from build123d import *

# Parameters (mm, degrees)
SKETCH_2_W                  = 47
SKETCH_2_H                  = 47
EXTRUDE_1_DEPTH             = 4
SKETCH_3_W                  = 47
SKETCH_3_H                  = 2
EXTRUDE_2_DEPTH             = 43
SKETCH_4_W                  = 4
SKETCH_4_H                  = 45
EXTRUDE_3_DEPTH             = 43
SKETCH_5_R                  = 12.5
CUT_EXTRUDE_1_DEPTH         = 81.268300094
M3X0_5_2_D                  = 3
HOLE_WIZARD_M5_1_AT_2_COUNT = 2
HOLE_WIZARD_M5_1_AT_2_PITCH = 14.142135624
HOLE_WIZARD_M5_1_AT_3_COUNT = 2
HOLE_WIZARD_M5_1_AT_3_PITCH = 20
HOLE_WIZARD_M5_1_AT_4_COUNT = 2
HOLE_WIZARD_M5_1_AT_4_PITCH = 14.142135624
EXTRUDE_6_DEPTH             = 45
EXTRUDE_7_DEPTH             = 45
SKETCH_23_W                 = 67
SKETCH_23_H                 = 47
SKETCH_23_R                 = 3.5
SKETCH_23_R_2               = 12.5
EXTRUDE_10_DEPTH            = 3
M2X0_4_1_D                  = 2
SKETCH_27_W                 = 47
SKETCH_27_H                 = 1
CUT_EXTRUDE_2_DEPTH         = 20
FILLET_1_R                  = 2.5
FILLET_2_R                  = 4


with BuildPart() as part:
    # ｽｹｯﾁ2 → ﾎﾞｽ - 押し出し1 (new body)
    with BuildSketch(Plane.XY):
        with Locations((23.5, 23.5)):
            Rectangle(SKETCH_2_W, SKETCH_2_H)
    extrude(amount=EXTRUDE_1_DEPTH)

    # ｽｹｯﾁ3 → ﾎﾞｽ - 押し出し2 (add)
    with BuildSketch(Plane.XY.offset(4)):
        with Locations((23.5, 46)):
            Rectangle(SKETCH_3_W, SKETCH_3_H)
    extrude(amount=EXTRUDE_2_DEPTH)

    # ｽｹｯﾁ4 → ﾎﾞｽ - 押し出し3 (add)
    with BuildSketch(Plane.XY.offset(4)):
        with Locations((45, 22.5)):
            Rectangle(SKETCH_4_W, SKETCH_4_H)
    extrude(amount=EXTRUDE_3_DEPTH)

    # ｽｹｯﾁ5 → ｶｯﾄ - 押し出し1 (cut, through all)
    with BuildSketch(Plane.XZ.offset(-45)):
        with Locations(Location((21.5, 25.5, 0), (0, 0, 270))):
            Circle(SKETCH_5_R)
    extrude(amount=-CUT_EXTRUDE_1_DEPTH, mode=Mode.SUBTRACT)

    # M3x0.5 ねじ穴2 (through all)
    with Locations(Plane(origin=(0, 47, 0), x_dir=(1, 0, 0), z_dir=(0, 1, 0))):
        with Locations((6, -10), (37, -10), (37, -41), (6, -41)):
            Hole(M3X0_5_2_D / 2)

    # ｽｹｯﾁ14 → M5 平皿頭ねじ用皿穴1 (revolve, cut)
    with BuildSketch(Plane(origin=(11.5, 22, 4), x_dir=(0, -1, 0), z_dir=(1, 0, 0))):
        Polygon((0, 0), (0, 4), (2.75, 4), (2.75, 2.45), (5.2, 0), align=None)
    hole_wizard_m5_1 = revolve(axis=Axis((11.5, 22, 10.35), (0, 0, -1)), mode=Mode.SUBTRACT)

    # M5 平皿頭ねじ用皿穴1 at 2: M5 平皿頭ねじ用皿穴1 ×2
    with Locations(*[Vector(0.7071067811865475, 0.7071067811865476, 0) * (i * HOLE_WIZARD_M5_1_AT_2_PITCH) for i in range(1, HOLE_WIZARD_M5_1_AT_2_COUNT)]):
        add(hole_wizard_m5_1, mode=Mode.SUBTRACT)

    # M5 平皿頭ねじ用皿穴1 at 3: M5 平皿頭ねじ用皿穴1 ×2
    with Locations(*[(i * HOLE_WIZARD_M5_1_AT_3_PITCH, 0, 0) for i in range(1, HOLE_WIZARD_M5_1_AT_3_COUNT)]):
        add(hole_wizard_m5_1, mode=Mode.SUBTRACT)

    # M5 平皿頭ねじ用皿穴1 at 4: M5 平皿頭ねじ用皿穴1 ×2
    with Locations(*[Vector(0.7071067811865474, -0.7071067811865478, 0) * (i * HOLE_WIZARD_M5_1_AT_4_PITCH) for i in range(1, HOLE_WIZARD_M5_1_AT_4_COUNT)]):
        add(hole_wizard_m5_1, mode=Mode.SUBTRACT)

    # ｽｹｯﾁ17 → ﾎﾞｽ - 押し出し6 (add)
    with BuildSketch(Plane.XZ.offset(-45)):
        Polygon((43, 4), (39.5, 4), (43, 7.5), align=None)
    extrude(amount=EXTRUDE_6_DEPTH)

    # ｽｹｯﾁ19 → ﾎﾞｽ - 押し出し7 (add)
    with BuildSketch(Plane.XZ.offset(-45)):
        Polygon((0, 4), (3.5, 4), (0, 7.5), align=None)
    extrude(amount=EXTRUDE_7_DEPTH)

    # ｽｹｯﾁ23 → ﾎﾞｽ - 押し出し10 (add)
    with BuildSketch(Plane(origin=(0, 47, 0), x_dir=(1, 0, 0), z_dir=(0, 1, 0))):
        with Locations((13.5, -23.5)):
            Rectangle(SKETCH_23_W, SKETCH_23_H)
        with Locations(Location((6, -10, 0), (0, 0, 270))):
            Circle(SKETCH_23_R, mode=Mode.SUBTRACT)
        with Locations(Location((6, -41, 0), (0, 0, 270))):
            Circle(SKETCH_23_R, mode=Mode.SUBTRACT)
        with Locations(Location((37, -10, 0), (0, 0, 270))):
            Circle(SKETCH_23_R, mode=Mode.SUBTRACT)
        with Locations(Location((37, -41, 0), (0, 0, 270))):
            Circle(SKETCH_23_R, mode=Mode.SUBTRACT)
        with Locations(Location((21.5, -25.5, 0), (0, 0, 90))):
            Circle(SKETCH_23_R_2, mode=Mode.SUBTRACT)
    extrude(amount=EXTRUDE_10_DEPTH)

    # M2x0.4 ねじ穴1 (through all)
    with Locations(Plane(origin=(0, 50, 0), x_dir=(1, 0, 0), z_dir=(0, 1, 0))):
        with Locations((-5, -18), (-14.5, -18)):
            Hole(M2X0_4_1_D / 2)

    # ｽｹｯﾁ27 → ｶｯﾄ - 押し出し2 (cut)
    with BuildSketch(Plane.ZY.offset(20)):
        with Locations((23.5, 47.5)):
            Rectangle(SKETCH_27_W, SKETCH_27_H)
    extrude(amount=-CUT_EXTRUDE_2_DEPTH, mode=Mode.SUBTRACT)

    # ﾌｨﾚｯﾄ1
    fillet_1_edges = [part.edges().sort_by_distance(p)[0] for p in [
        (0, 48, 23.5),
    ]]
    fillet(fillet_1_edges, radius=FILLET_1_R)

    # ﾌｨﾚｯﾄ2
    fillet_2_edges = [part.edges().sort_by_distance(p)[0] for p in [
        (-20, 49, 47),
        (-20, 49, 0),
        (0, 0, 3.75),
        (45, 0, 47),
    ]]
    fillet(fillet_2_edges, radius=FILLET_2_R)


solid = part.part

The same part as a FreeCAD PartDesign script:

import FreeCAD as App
import Part
import Sketcher
from FreeCAD import Vector
Q = App.Units.Quantity


def edges_at(feature, points):
    """Names of the edges that pass closest to the given points."""
    edges = feature.Shape.Edges
    near = lambda p: min(range(len(edges)), key=lambda i: edges[i].distToShape(Part.Vertex(*p))[0])
    return sorted({f"Edge{near(p) + 1}" for p in points})

doc = App.newDocument("Part")
body = doc.addObject("PartDesign::Body", "Body")

sketch1 = doc.addObject("Sketcher::SketchObject", "Sketch")
body.addObject(sketch1)
sketch1.AttachmentSupport = (doc.XY_Plane, [""])
sketch1.MapMode = "FlatFace"
sketch1.addGeometry(Part.LineSegment(Vector(0, 47, 0), Vector(0, 0, 0)), False)
sketch1.addGeometry(Part.LineSegment(Vector(0, 0, 0), Vector(47, 0, 0)), False)
sketch1.addGeometry(Part.LineSegment(Vector(47, 0, 0), Vector(47, 47, 0)), False)
sketch1.addGeometry(Part.LineSegment(Vector(47, 47, 0), Vector(0, 47, 0)), False)
sketch1.addConstraint(Sketcher.Constraint("Coincident", 0, 2, 1, 1))
sketch1.addConstraint(Sketcher.Constraint("Coincident", 1, 2, 2, 1))
sketch1.addConstraint(Sketcher.Constraint("Coincident", 2, 2, 3, 1))
sketch1.addConstraint(Sketcher.Constraint("Coincident", 3, 2, 0, 1))
sketch1.addConstraint(Sketcher.Constraint("Vertical", 0))
sketch1.addConstraint(Sketcher.Constraint("Horizontal", 1))
sketch1.addConstraint(Sketcher.Constraint("Vertical", 2))
sketch1.addConstraint(Sketcher.Constraint("Horizontal", 3))
sketch1.addConstraint(Sketcher.Constraint("Coincident", 0, 2, -1, 1))
sketch1.addConstraint(Sketcher.Constraint("Equal", 3, 0))
sketch1.addConstraint(Sketcher.Constraint("DistanceX", 1, 1, 1, 2, Q("47 mm")))
pad1 = doc.addObject("PartDesign::Pad", "Pad")
body.addObject(pad1)
pad1.Profile = sketch1
pad1.Length = 4

sketch2 = doc.addObject("Sketcher::SketchObject", "Sketch001")
body.addObject(sketch2)
sketch2.AttachmentSupport = (doc.XY_Plane, [""])
sketch2.MapMode = "FlatFace"
sketch2.AttachmentOffset = App.Placement(Vector(0, 0, 4), App.Rotation())
sketch2.addGeometry(Part.LineSegment(Vector(0, 47, 0), Vector(0, 45, 0)), False)
sketch2.addGeometry(Part.LineSegment(Vector(0, 45, 0), Vector(47, 45, 0)), False)
sketch2.addGeometry(Part.LineSegment(Vector(47, 45, 0), Vector(47, 47, 0)), False)
sketch2.addGeometry(Part.LineSegment(Vector(47, 47, 0), Vector(0, 47, 0)), False)
sketch2.addConstraint(Sketcher.Constraint("Coincident", 0, 2, 1, 1))
sketch2.addConstraint(Sketcher.Constraint("Coincident", 1, 2, 2, 1))
sketch2.addConstraint(Sketcher.Constraint("Coincident", 2, 2, 3, 1))
sketch2.addConstraint(Sketcher.Constraint("Coincident", 3, 2, 0, 1))
sketch2.addConstraint(Sketcher.Constraint("Vertical", 0))
sketch2.addConstraint(Sketcher.Constraint("Horizontal", 1))
sketch2.addConstraint(Sketcher.Constraint("Vertical", 2))
sketch2.addConstraint(Sketcher.Constraint("Horizontal", 3))
sketch2.addConstraint(Sketcher.Constraint("PointOnObject", 0, 2, -2))
sketch2.addConstraint(Sketcher.Constraint("DistanceX", 1, 1, 1, 2, Q("47 mm")))
sketch2.addConstraint(Sketcher.Constraint("DistanceY", 0, 2, 0, 1, Q("2 mm")))
sketch2.addConstraint(Sketcher.Constraint("DistanceY", -1, 1, 0, 2, Q("45 mm")))
pad2 = doc.addObject("PartDesign::Pad", "Pad001")
body.addObject(pad2)
pad2.Profile = sketch2
pad2.Length = 43

sketch3 = doc.addObject("Sketcher::SketchObject", "Sketch002")
body.addObject(sketch3)
sketch3.AttachmentSupport = (doc.XY_Plane, [""])
sketch3.MapMode = "FlatFace"
sketch3.AttachmentOffset = App.Placement(Vector(0, 0, 4), App.Rotation())
sketch3.addGeometry(Part.LineSegment(Vector(43, 45, 0), Vector(43, 0, 0)), False)
sketch3.addGeometry(Part.LineSegment(Vector(43, 0, 0), Vector(47, 0, 0)), False)
sketch3.addGeometry(Part.LineSegment(Vector(47, 0, 0), Vector(47, 45, 0)), False)
sketch3.addGeometry(Part.LineSegment(Vector(47, 45, 0), Vector(43, 45, 0)), False)
sketch3.addConstraint(Sketcher.Constraint("Coincident", 0, 2, 1, 1))
sketch3.addConstraint(Sketcher.Constraint("Coincident", 1, 2, 2, 1))
sketch3.addConstraint(Sketcher.Constraint("Coincident", 2, 2, 3, 1))
sketch3.addConstraint(Sketcher.Constraint("Coincident", 3, 2, 0, 1))
sketch3.addConstraint(Sketcher.Constraint("Vertical", 0))
sketch3.addConstraint(Sketcher.Constraint("Horizontal", 1))
sketch3.addConstraint(Sketcher.Constraint("Vertical", 2))
sketch3.addConstraint(Sketcher.Constraint("Horizontal", 3))
sketch3.addConstraint(Sketcher.Constraint("PointOnObject", 0, 2, -1))
sketch3.addConstraint(Sketcher.Constraint("DistanceX", 1, 1, 1, 2, Q("4 mm")))
sketch3.addConstraint(Sketcher.Constraint("DistanceY", 0, 2, 0, 1, Q("45 mm")))
sketch3.addConstraint(Sketcher.Constraint("DistanceX", -1, 1, 0, 2, Q("43 mm")))
pad3 = doc.addObject("PartDesign::Pad", "Pad002")
body.addObject(pad3)
pad3.Profile = sketch3
pad3.Length = 43

sketch4 = doc.addObject("Sketcher::SketchObject", "Sketch003")
body.addObject(sketch4)
sketch4.AttachmentSupport = (doc.XZ_Plane, [""])
sketch4.MapMode = "FlatFace"
sketch4.AttachmentOffset = App.Placement(Vector(0, 0, -45), App.Rotation())
sketch4.addGeometry(Part.Circle(Vector(22, 26, 0), Vector(0, 0, 1), 12), False)
sketch4.addConstraint(Sketcher.Constraint("Diameter", 0, Q("25 mm")))
sketch4.addConstraint(Sketcher.Constraint("DistanceX", -1, 1, 0, 3, Q("21.5 mm")))
sketch4.addConstraint(Sketcher.Constraint("DistanceY", -1, 1, 0, 3, Q("25.5 mm")))
pocket1 = doc.addObject("PartDesign::Pocket", "Pocket")
body.addObject(pocket1)
pocket1.Profile = sketch4
pocket1.Type = "ThroughAll"

sketch5 = doc.addObject("Sketcher::SketchObject", "Sketch004")
body.addObject(sketch5)
sketch5.AttachmentSupport = (doc.XZ_Plane, [""])
sketch5.MapMode = "FlatFace"
sketch5.AttachmentOffset = App.Placement(Vector(0, 0, -47), App.Rotation())
sketch5.addGeometry(Part.Circle(Vector(6, 10, 0), Vector(0, 0, 1), 1.5), False)
sketch5.addGeometry(Part.Circle(Vector(37, 10, 0), Vector(0, 0, 1), 1.5), False)
sketch5.addGeometry(Part.Circle(Vector(37, 41, 0), Vector(0, 0, 1), 1.5), False)
sketch5.addGeometry(Part.Circle(Vector(6, 41, 0), Vector(0, 0, 1), 1.5), False)
sketch5.addConstraint(Sketcher.Constraint("Equal", 0, 1))
sketch5.addConstraint(Sketcher.Constraint("Equal", 1, 2))
sketch5.addConstraint(Sketcher.Constraint("Equal", 2, 3))
sketch5.addConstraint(Sketcher.Constraint("Horizontal", 0, 3, 1, 3))
sketch5.addConstraint(Sketcher.Constraint("Horizontal", 2, 3, 3, 3))
sketch5.addConstraint(Sketcher.Constraint("Vertical", 1, 3, 2, 3))
sketch5.addConstraint(Sketcher.Constraint("Vertical", 0, 3, 3, 3))
sketch5.addConstraint(Sketcher.Constraint("Diameter", 0, Q("3 mm")))
sketch5.addConstraint(Sketcher.Constraint("DistanceX", -1, 1, 0, 3, Q("6 mm")))
sketch5.addConstraint(Sketcher.Constraint("DistanceY", -1, 1, 0, 3, Q("10 mm")))
sketch5.addConstraint(Sketcher.Constraint("DistanceX", -1, 1, 1, 3, Q("37 mm")))
sketch5.addConstraint(Sketcher.Constraint("DistanceY", -1, 1, 2, 3, Q("41 mm")))
doc.recompute()
hole = doc.addObject("PartDesign::Hole", "Hole")
body.addObject(hole)
hole.Profile = sketch5
hole.ThreadType = "None"
hole.Diameter = 3
hole.DepthType = "ThroughAll"
hole.Reversed = True

sketch6 = doc.addObject("Sketcher::SketchObject", "Sketch005")
body.addObject(sketch6)
sketch6.AttachmentSupport = (doc.YZ_Plane, [""])
sketch6.MapMode = "FlatFace"
sketch6.AttachmentOffset = App.Placement(Vector(0, 0, 11.5), App.Rotation())
sketch6.addGeometry(Part.LineSegment(Vector(22, 0, 0), Vector(22, 4, 0)), False)
sketch6.addGeometry(Part.LineSegment(Vector(22, 4, 0), Vector(16.8, 4, 0)), False)
sketch6.addGeometry(Part.LineSegment(Vector(16.8, 4, 0), Vector(19.2, 1.6, 0)), False)
sketch6.addGeometry(Part.LineSegment(Vector(19.2, 1.6, 0), Vector(19.2, 0, 0)), False)
sketch6.addGeometry(Part.LineSegment(Vector(19.2, 0, 0), Vector(22, 0, 0)), False)
sketch6.addGeometry(Part.LineSegment(Vector(22, 4, 0), Vector(22, 0, 0)), True)
sketch6.addConstraint(Sketcher.Constraint("Coincident", 0, 2, 1, 1))
sketch6.addConstraint(Sketcher.Constraint("Coincident", 1, 2, 2, 1))
sketch6.addConstraint(Sketcher.Constraint("Coincident", 2, 2, 3, 1))
sketch6.addConstraint(Sketcher.Constraint("Coincident", 3, 2, 4, 1))
sketch6.addConstraint(Sketcher.Constraint("Coincident", 4, 2, 0, 1))
sketch6.addConstraint(Sketcher.Constraint("Vertical", 0))
sketch6.addConstraint(Sketcher.Constraint("Horizontal", 1))
sketch6.addConstraint(Sketcher.Constraint("Vertical", 3))
sketch6.addConstraint(Sketcher.Constraint("Horizontal", 4))
sketch6.addConstraint(Sketcher.Constraint("Vertical", 5))
sketch6.addConstraint(Sketcher.Constraint("Coincident", 5, 1, 0, 2))
sketch6.addConstraint(Sketcher.Constraint("PointOnObject", 3, 2, -1))
sketch6.addConstraint(Sketcher.Constraint("PointOnObject", 5, 2, -1))
sketch6.addConstraint(Sketcher.Constraint("DistanceY", 0, 1, 0, 2, Q("4 mm")))
sketch6.addConstraint(Sketcher.Constraint("Angle", 2, Q("-45 deg")))
sketch6.addConstraint(Sketcher.Constraint("DistanceX", 1, 2, 1, 1, Q("5.2 mm")))
sketch6.addConstraint(Sketcher.Constraint("DistanceX", -1, 1, 0, 2, Q("22 mm")))
sketch6.addConstraint(Sketcher.Constraint("DistanceX", 4, 1, 4, 2, Q("2.75 mm")))
groove = doc.addObject("PartDesign::Groove", "Groove")
body.addObject(groove)
groove.Profile = sketch6
groove.ReferenceAxis = (sketch6, ["Axis0"])
groove.Angle = 360
doc.recompute()

datumline = doc.addObject("PartDesign::Line", "DatumLine")
body.addObject(datumline)
datumline.Placement = App.Placement(Vector(0, 0, 0), App.Rotation(Vector(0, 0, 1), Vector(0.707106781, 0.707106781, 0)))
linearpattern = doc.addObject("PartDesign::LinearPattern", "LinearPattern")
body.addObject(linearpattern)
linearpattern.Originals = [groove]
linearpattern.Direction = (datumline, [""])
linearpattern.Mode = "offset"
linearpattern.Offset = 14.142136
linearpattern.Occurrences = 2
body.Tip = linearpattern
doc.recompute()

linearpattern2 = doc.addObject("PartDesign::LinearPattern", "LinearPattern001")
body.addObject(linearpattern2)
linearpattern2.Originals = [groove]
linearpattern2.Direction = (doc.X_Axis, [""])
linearpattern2.Mode = "offset"
linearpattern2.Offset = 20
linearpattern2.Occurrences = 2
body.Tip = linearpattern2
doc.recompute()

datumline2 = doc.addObject("PartDesign::Line", "DatumLine001")
body.addObject(datumline2)
datumline2.Placement = App.Placement(Vector(0, 0, 0), App.Rotation(Vector(0, 0, 1), Vector(0.707106781, -0.707106781, 0)))
linearpattern3 = doc.addObject("PartDesign::LinearPattern", "LinearPattern002")
body.addObject(linearpattern3)
linearpattern3.Originals = [groove]
linearpattern3.Direction = (datumline2, [""])
linearpattern3.Mode = "offset"
linearpattern3.Offset = 14.142136
linearpattern3.Occurrences = 2
body.Tip = linearpattern3

sketch7 = doc.addObject("Sketcher::SketchObject", "Sketch006")
body.addObject(sketch7)
sketch7.AttachmentSupport = (doc.XZ_Plane, [""])
sketch7.MapMode = "FlatFace"
sketch7.AttachmentOffset = App.Placement(Vector(0, 0, -45), App.Rotation())
sketch7.addGeometry(Part.LineSegment(Vector(39.5, 4, 0), Vector(43, 4, 0)), False)
sketch7.addGeometry(Part.LineSegment(Vector(43, 4, 0), Vector(43, 7.5, 0)), False)
sketch7.addGeometry(Part.LineSegment(Vector(43, 7.5, 0), Vector(39.5, 4, 0)), False)
sketch7.addConstraint(Sketcher.Constraint("Coincident", 0, 2, 1, 1))
sketch7.addConstraint(Sketcher.Constraint("Coincident", 1, 2, 2, 1))
sketch7.addConstraint(Sketcher.Constraint("Coincident", 2, 2, 0, 1))
sketch7.addConstraint(Sketcher.Constraint("Horizontal", 0))
sketch7.addConstraint(Sketcher.Constraint("Vertical", 1))
sketch7.addConstraint(Sketcher.Constraint("Equal", 0, 1))
sketch7.addConstraint(Sketcher.Constraint("DistanceX", 0, 1, 0, 2, Q("3.5 mm")))
sketch7.addConstraint(Sketcher.Constraint("DistanceX", -1, 1, 0, 2, Q("43 mm")))
sketch7.addConstraint(Sketcher.Constraint("DistanceY", -1, 1, 0, 2, Q("4 mm")))
pad4 = doc.addObject("PartDesign::Pad", "Pad003")
body.addObject(pad4)
pad4.Profile = sketch7
pad4.Length = 45

sketch8 = doc.addObject("Sketcher::SketchObject", "Sketch007")
body.addObject(sketch8)
sketch8.AttachmentSupport = (doc.XZ_Plane, [""])
sketch8.MapMode = "FlatFace"
sketch8.AttachmentOffset = App.Placement(Vector(0, 0, -45), App.Rotation())
sketch8.addGeometry(Part.LineSegment(Vector(0, 4, 0), Vector(3.5, 4, 0)), False)
sketch8.addGeometry(Part.LineSegment(Vector(3.5, 4, 0), Vector(0, 7.5, 0)), False)
sketch8.addGeometry(Part.LineSegment(Vector(0, 7.5, 0), Vector(0, 4, 0)), False)
sketch8.addConstraint(Sketcher.Constraint("Coincident", 0, 2, 1, 1))
sketch8.addConstraint(Sketcher.Constraint("Coincident", 1, 2, 2, 1))
sketch8.addConstraint(Sketcher.Constraint("Coincident", 2, 2, 0, 1))
sketch8.addConstraint(Sketcher.Constraint("Horizontal", 0))
sketch8.addConstraint(Sketcher.Constraint("Vertical", 2))
sketch8.addConstraint(Sketcher.Constraint("PointOnObject", 1, 2, -2))
sketch8.addConstraint(Sketcher.Constraint("Equal", 0, 2))
sketch8.addConstraint(Sketcher.Constraint("DistanceX", 0, 1, 0, 2, Q("3.5 mm")))
sketch8.addConstraint(Sketcher.Constraint("DistanceY", -1, 1, 0, 2, Q("4 mm")))
pad5 = doc.addObject("PartDesign::Pad", "Pad004")
body.addObject(pad5)
pad5.Profile = sketch8
pad5.Length = 45

sketch9 = doc.addObject("Sketcher::SketchObject", "Sketch008")
body.addObject(sketch9)
sketch9.AttachmentSupport = (doc.XZ_Plane, [""])
sketch9.MapMode = "FlatFace"
sketch9.AttachmentOffset = App.Placement(Vector(0, 0, -47), App.Rotation())
sketch9.addGeometry(Part.LineSegment(Vector(-20, 0, 0), Vector(-20, 47, 0)), False)
sketch9.addGeometry(Part.LineSegment(Vector(-20, 47, 0), Vector(47, 47, 0)), False)
sketch9.addGeometry(Part.LineSegment(Vector(47, 47, 0), Vector(47, 0, 0)), False)
sketch9.addGeometry(Part.LineSegment(Vector(47, 0, 0), Vector(-20, 0, 0)), False)
sketch9.addGeometry(Part.Circle(Vector(6, 41, 0), Vector(0, 0, 1), 3.5), False)
sketch9.addGeometry(Part.Circle(Vector(37, 41, 0), Vector(0, 0, 1), 3.5), False)
sketch9.addGeometry(Part.Circle(Vector(6, 10, 0), Vector(0, 0, 1), 3.5), False)
sketch9.addGeometry(Part.Circle(Vector(21.5, 25.5, 0), Vector(0, 0, 1), 12.5), False)
sketch9.addGeometry(Part.Circle(Vector(37, 10, 0), Vector(0, 0, 1), 3.5), False)
sketch9.addConstraint(Sketcher.Constraint("Coincident", 0, 2, 1, 1))
sketch9.addConstraint(Sketcher.Constraint("Coincident", 1, 2, 2, 1))
sketch9.addConstraint(Sketcher.Constraint("Coincident", 2, 2, 3, 1))
sketch9.addConstraint(Sketcher.Constraint("Coincident", 3, 2, 0, 1))
sketch9.addConstraint(Sketcher.Constraint("Vertical", 0))
sketch9.addConstraint(Sketcher.Constraint("Horizontal", 1))
sketch9.addConstraint(Sketcher.Constraint("Vertical", 2))
sketch9.addConstraint(Sketcher.Constraint("Horizontal", 3))
sketch9.addConstraint(Sketcher.Constraint("Equal", 4, 5))
sketch9.addConstraint(Sketcher.Constraint("Equal", 5, 6))
sketch9.addConstraint(Sketcher.Constraint("Equal", 6, 8))
sketch9.addConstraint(Sketcher.Constraint("PointOnObject", 2, 2, -1))
sketch9.addConstraint(Sketcher.Constraint("Horizontal", 4, 3, 5, 3))
sketch9.addConstraint(Sketcher.Constraint("Horizontal", 6, 3, 8, 3))
sketch9.addConstraint(Sketcher.Constraint("Vertical", 4, 3, 6, 3))
sketch9.addConstraint(Sketcher.Constraint("Vertical", 5, 3, 8, 3))
sketch9.addConstraint(Sketcher.Constraint("Diameter", 4, Q("7 mm")))
sketch9.addConstraint(Sketcher.Constraint("Diameter", 7, Q("25 mm")))
sketch9.addConstraint(Sketcher.Constraint("DistanceX", 1, 1, 1, 2, Q("67 mm")))
sketch9.addConstraint(Sketcher.Constraint("DistanceY", 0, 1, 0, 2, Q("47 mm")))
sketch9.addConstraint(Sketcher.Constraint("DistanceX", -1, 1, 4, 3, Q("6 mm")))
sketch9.addConstraint(Sketcher.Constraint("DistanceY", -1, 1, 4, 3, Q("41 mm")))
sketch9.addConstraint(Sketcher.Constraint("DistanceX", -1, 1, 5, 3, Q("37 mm")))
sketch9.addConstraint(Sketcher.Constraint("DistanceY", -1, 1, 6, 3, Q("10 mm")))
sketch9.addConstraint(Sketcher.Constraint("DistanceX", 0, 2, -1, 1, Q("20 mm")))
sketch9.addConstraint(Sketcher.Constraint("DistanceX", -1, 1, 7, 3, Q("21.5 mm")))
sketch9.addConstraint(Sketcher.Constraint("DistanceY", -1, 1, 7, 3, Q("25.5 mm")))
pad6 = doc.addObject("PartDesign::Pad", "Pad005")
body.addObject(pad6)
pad6.Profile = sketch9
pad6.Length = 3
pad6.Reversed = True

sketch10 = doc.addObject("Sketcher::SketchObject", "Sketch009")
body.addObject(sketch10)
sketch10.AttachmentSupport = (doc.XZ_Plane, [""])
sketch10.MapMode = "FlatFace"
sketch10.AttachmentOffset = App.Placement(Vector(0, 0, -50), App.Rotation())
sketch10.addGeometry(Part.Circle(Vector(-5, 18, 0), Vector(0, 0, 1), 1), False)
sketch10.addGeometry(Part.Circle(Vector(-14.5, 18, 0), Vector(0, 0, 1), 1), False)
sketch10.addConstraint(Sketcher.Constraint("Equal", 0, 1))
sketch10.addConstraint(Sketcher.Constraint("Horizontal", 0, 3, 1, 3))
sketch10.addConstraint(Sketcher.Constraint("Diameter", 0, Q("2 mm")))
sketch10.addConstraint(Sketcher.Constraint("DistanceX", 0, 3, -1, 1, Q("5 mm")))
sketch10.addConstraint(Sketcher.Constraint("DistanceY", -1, 1, 0, 3, Q("18 mm")))
sketch10.addConstraint(Sketcher.Constraint("DistanceX", 1, 3, -1, 1, Q("14.5 mm")))
doc.recompute()
hole2 = doc.addObject("PartDesign::Hole", "Hole001")
body.addObject(hole2)
hole2.Profile = sketch10
hole2.ThreadType = "None"
hole2.Diameter = 2
hole2.DepthType = "ThroughAll"
hole2.Reversed = True

sketch11 = doc.addObject("Sketcher::SketchObject", "Sketch010")
body.addObject(sketch11)
sketch11.AttachmentSupport = (doc.YZ_Plane, [""])
sketch11.MapMode = "FlatFace"
sketch11.AttachmentOffset = App.Placement(Vector(0, 0, -20), App.Rotation())
sketch11.addGeometry(Part.LineSegment(Vector(48, 0, 0), Vector(47, 0, 0)), False)
sketch11.addGeometry(Part.LineSegment(Vector(47, 0, 0), Vector(47, 47, 0)), False)
sketch11.addGeometry(Part.LineSegment(Vector(47, 47, 0), Vector(48, 47, 0)), False)
sketch11.addGeometry(Part.LineSegment(Vector(48, 47, 0), Vector(48, 0, 0)), False)
sketch11.addConstraint(Sketcher.Constraint("Coincident", 0, 2, 1, 1))
sketch11.addConstraint(Sketcher.Constraint("Coincident", 1, 2, 2, 1))
sketch11.addConstraint(Sketcher.Constraint("Coincident", 2, 2, 3, 1))
sketch11.addConstraint(Sketcher.Constraint("Coincident", 3, 2, 0, 1))
sketch11.addConstraint(Sketcher.Constraint("Horizontal", 0))
sketch11.addConstraint(Sketcher.Constraint("Vertical", 1))
sketch11.addConstraint(Sketcher.Constraint("Horizontal", 2))
sketch11.addConstraint(Sketcher.Constraint("Vertical", 3))
sketch11.addConstraint(Sketcher.Constraint("PointOnObject", 0, 2, -1))
sketch11.addConstraint(Sketcher.Constraint("DistanceX", 0, 2, 0, 1, Q("1 mm")))
sketch11.addConstraint(Sketcher.Constraint("DistanceY", 1, 1, 1, 2, Q("47 mm")))
sketch11.addConstraint(Sketcher.Constraint("DistanceX", -1, 1, 0, 2, Q("47 mm")))
pocket2 = doc.addObject("PartDesign::Pocket", "Pocket001")
body.addObject(pocket2)
pocket2.Profile = sketch11
pocket2.Length = 20
pocket2.Reversed = True
doc.recompute()

fillet = doc.addObject("PartDesign::Fillet", "Fillet")
body.addObject(fillet)
fillet.Base = (pocket2, edges_at(pocket2, [(0, 48, 23.5)]))
fillet.Radius = 2.5
doc.recompute()

fillet2 = doc.addObject("PartDesign::Fillet", "Fillet001")
body.addObject(fillet2)
fillet2.Base = (fillet, edges_at(fillet, [
    (-20, 49, 47),
    (-20, 49, 0),
    (0, 0, 3.75),
    (45, 0, 47),
]))
fillet2.Radius = 4

doc.recompute()
